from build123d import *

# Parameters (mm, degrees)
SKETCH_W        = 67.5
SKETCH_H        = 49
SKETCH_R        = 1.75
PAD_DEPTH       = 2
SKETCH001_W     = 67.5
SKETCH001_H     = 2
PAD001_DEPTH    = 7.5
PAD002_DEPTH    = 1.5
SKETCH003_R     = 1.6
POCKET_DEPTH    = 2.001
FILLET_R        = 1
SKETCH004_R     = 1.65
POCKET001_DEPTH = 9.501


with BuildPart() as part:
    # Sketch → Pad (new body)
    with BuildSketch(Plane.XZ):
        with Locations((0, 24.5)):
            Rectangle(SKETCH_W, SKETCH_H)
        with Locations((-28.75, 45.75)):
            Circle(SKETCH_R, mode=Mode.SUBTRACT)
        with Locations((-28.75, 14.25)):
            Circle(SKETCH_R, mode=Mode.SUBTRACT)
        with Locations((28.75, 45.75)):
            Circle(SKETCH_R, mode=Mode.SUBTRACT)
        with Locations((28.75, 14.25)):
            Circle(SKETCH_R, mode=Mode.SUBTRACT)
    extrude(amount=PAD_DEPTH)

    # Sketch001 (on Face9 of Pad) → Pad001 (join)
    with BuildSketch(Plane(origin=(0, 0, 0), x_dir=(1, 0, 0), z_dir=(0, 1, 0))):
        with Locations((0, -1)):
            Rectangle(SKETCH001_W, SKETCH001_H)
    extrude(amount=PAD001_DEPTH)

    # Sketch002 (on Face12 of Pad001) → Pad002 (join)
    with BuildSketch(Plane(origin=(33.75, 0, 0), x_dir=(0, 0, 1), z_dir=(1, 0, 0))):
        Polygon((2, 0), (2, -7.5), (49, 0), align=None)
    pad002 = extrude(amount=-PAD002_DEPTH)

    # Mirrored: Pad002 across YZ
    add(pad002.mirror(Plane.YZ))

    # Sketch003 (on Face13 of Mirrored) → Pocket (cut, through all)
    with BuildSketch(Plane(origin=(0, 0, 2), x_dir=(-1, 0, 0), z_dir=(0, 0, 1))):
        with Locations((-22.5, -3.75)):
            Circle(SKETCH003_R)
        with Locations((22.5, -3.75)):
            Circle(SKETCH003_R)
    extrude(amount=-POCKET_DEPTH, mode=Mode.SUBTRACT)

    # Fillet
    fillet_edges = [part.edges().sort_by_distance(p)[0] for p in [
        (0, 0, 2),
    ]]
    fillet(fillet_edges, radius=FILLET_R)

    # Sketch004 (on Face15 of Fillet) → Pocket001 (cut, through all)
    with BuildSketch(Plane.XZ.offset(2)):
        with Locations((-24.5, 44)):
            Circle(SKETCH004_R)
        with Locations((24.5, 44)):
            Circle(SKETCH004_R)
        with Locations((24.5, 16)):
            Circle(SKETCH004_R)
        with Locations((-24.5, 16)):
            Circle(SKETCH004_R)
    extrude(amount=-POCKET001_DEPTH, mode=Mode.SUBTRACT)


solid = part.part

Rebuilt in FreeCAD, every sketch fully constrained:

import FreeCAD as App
import Part
import Sketcher
from FreeCAD import Vector


def edges_at(feature, points):
    """Names of the edges that pass closest to the given points."""
    edges = feature.Shape.Edges
    near = lambda p: min(range(len(edges)), key=lambda i: edges[i].distToShape(Part.Vertex(*p))[0])
    return sorted({f"Edge{near(p) + 1}" for p in points})

doc = App.newDocument("Part")
body = doc.addObject("PartDesign::Body", "Body")

# Sketch on XZ plane
sketch1 = body.newObject("Sketcher::SketchObject", "Sketch")
sketch1.AttachmentSupport = (doc.getObject("XZ_Plane"), [""])
sketch1.MapMode = "FlatFace"
sketch1.addGeometry([
    Part.LineSegment(Vector(-33.8, 49, 0), Vector(-33.8, 0, 0)),  # 0
    Part.LineSegment(Vector(-33.8, 0, 0), Vector(33.8, 0, 0)),  # 1
    Part.LineSegment(Vector(33.8, 0, 0), Vector(33.8, 49, 0)),  # 2
    Part.LineSegment(Vector(33.8, 49, 0), Vector(-33.8, 49, 0)),  # 3
    Part.Circle(Vector(-28.8, 14.2, 0), Vector(0, 0, 1), 1.8),  # 4
    Part.Circle(Vector(28.8, 14.2, 0), Vector(0, 0, 1), 1.8),  # 5
    Part.Circle(Vector(-28.8, 45.8, 0), Vector(0, 0, 1), 1.8),  # 6
    Part.Circle(Vector(28.8, 45.8, 0), Vector(0, 0, 1), 1.8),  # 7
], False)
sketch1.addConstraint([
    Sketcher.Constraint("Coincident", 0, 2, 1, 1),
    Sketcher.Constraint("Coincident", 1, 2, 2, 1),
    Sketcher.Constraint("Coincident", 2, 2, 3, 1),
    Sketcher.Constraint("Coincident", 3, 2, 0, 1),
    Sketcher.Constraint("Vertical", 0),
    Sketcher.Constraint("Horizontal", 1),
    Sketcher.Constraint("Vertical", 2),
    Sketcher.Constraint("Horizontal", 3),
    Sketcher.Constraint("Equal", 4, 5),
    Sketcher.Constraint("Equal", 5, 6),
    Sketcher.Constraint("Equal", 6, 7),
    Sketcher.Constraint("Symmetric", 0, 2, 1, 2, -1, 1),
    Sketcher.Constraint("Symmetric", 4, 3, 5, 3, -2),
    Sketcher.Constraint("Symmetric", 6, 3, 7, 3, -2),
    Sketcher.Constraint("Vertical", 4, 3, 6, 3),
    Sketcher.Constraint("Diameter", 4, 3.5),
    Sketcher.Constraint("DistanceY", 0, 2, 0, 1, 49.0),
    Sketcher.Constraint("DistanceX", 1, 1, 1, 2, 67.5),
    Sketcher.Constraint("DistanceX", 0, 2, 4, 3, 5.0),
    Sketcher.Constraint("DistanceY", 4, 3, 6, 3, 31.5),
    Sketcher.Constraint("DistanceY", -1, 1, 4, 3, 14.25),
])
pad1 = body.newObject("PartDesign::Pad", "Pad")
pad1.Profile = sketch1
pad1.Length = 2

# Sketch on XZ plane
sketch2 = body.newObject("Sketcher::SketchObject", "Sketch001")
sketch2.AttachmentSupport = (doc.getObject("XZ_Plane"), [""])
sketch2.MapMode = "FlatFace"
sketch2.addGeometry([
    Part.LineSegment(Vector(-33.8, 0, 0), Vector(-33.8, 2, 0)),
    Part.LineSegment(Vector(-33.8, 2, 0), Vector(33.8, 2, 0)),
    Part.LineSegment(Vector(33.8, 2, 0), Vector(33.8, 0, 0)),
    Part.LineSegment(Vector(33.8, 0, 0), Vector(-33.8, 0, 0)),
], False)
sketch2.addConstraint([
    Sketcher.Constraint("Coincident", 0, 2, 1, 1),
    Sketcher.Constraint("Coincident", 1, 2, 2, 1),
    Sketcher.Constraint("Coincident", 2, 2, 3, 1),
    Sketcher.Constraint("Coincident", 3, 2, 0, 1),
    Sketcher.Constraint("Vertical", 0),
    Sketcher.Constraint("Horizontal", 1),
    Sketcher.Constraint("Vertical", 2),
    Sketcher.Constraint("Horizontal", 3),
    Sketcher.Constraint("Symmetric", 2, 2, 3, 2, -1, 1),
    Sketcher.Constraint("DistanceY", 0, 1, 0, 2, 2.0),
    Sketcher.Constraint("DistanceX", 1, 1, 1, 2, 67.5),
])
pad2 = body.newObject("PartDesign::Pad", "Pad001")
pad2.Profile = sketch2
pad2.Length = 7.5
pad2.Reversed = True

# Sketch on YZ plane
sketch3 = body.newObject("Sketcher::SketchObject", "Sketch002")
sketch3.AttachmentSupport = (doc.getObject("YZ_Plane"), [""])
sketch3.MapMode = "FlatFace"
sketch3.AttachmentOffset = App.Placement(Vector(0, 0, 33.75), App.Rotation())
sketch3.addGeometry([
    Part.LineSegment(Vector(0, 2, 0), Vector(8, 2, 0)),
    Part.LineSegment(Vector(8, 2, 0), Vector(0, 49, 0)),
    Part.LineSegment(Vector(0, 49, 0), Vector(0, 2, 0)),
], False)
sketch3.addConstraint([
    Sketcher.Constraint("Coincident", 0, 2, 1, 1),
    Sketcher.Constraint("Coincident", 1, 2, 2, 1),
    Sketcher.Constraint("Coincident", 2, 2, 0, 1),
    Sketcher.Constraint("Horizontal", 0),
    Sketcher.Constraint("Vertical", 2),
    Sketcher.Constraint("PointOnObject", 1, 2, -2),
    Sketcher.Constraint("DistanceY", 2, 2, 2, 1, 47.0),
    Sketcher.Constraint("DistanceX", 0, 1, 0, 2, 7.5),
    Sketcher.Constraint("DistanceY", -1, 1, 0, 2, 2.0),
])
pad3 = body.newObject("PartDesign::Pad", "Pad002")
pad3.Profile = sketch3
pad3.Length = 1.5
pad3.Reversed = True
doc.recompute()

mirrored = body.newObject("PartDesign::Mirrored", "Mirrored")
mirrored.Originals = [pad3]
mirrored.MirrorPlane = (doc.getObject("YZ_Plane"), [""])
body.Tip = mirrored

# Sketch on XY plane
sketch4 = body.newObject("Sketcher::SketchObject", "Sketch003")
sketch4.AttachmentSupport = (doc.getObject("XY_Plane"), [""])
sketch4.MapMode = "FlatFace"
sketch4.AttachmentOffset = App.Placement(Vector(0, 0, 2), App.Rotation())
sketch4.addGeometry([
    Part.Circle(Vector(22.5, 3.8, 0), Vector(0, 0, 1), 1.6),
    Part.Circle(Vector(-22.5, 3.8, 0), Vector(0, 0, 1), 1.6),
], False)
sketch4.addConstraint([
    Sketcher.Constraint("Equal", 0, 1),
    Sketcher.Constraint("Symmetric", 0, 3, 1, 3, -2),
    Sketcher.Constraint("Diameter", 0, 3.2),
    Sketcher.Constraint("DistanceX", 1, 3, 0, 3, 45.0),
    Sketcher.Constraint("DistanceY", -1, 1, 0, 3, 3.75),
])
pocket1 = body.newObject("PartDesign::Pocket", "Pocket")
pocket1.Profile = sketch4
pocket1.Type = "ThroughAll"
doc.recompute()

fillet = body.newObject("PartDesign::Fillet", "Fillet")
fillet.Base = (pocket1, edges_at(pocket1, [(0, 0, 2)]))
fillet.Radius = 1

# Sketch on XZ plane
sketch5 = body.newObject("Sketcher::SketchObject", "Sketch004")
sketch5.AttachmentSupport = (doc.getObject("XZ_Plane"), [""])
sketch5.MapMode = "FlatFace"
sketch5.AttachmentOffset = App.Placement(Vector(0, 0, 2), App.Rotation())
sketch5.addGeometry([
    Part.Circle(Vector(-24.5, 44, 0), Vector(0, 0, 1), 1.6),
    Part.Circle(Vector(24.5, 44, 0), Vector(0, 0, 1), 1.6),
    Part.Circle(Vector(24.5, 16, 0), Vector(0, 0, 1), 1.6),
    Part.Circle(Vector(-24.5, 16, 0), Vector(0, 0, 1), 1.6),
], False)
sketch5.addConstraint([
    Sketcher.Constraint("Equal", 0, 1),
    Sketcher.Constraint("Equal", 1, 2),
    Sketcher.Constraint("Equal", 2, 3),
    Sketcher.Constraint("Symmetric", 0, 3, 1, 3, -2),
    Sketcher.Constraint("Symmetric", 2, 3, 3, 3, -2),
    Sketcher.Constraint("Vertical", 1, 3, 2, 3),
    Sketcher.Constraint("Diameter", 0, 3.3),
    Sketcher.Constraint("DistanceY", -1, 1, 0, 3, 44.0),
    Sketcher.Constraint("DistanceY", -1, 1, 2, 3, 16.0),
    Sketcher.Constraint("DistanceX", 0, 3, 1, 3, 49.0),
])
pocket2 = body.newObject("PartDesign::Pocket", "Pocket001")
pocket2.Profile = sketch5
pocket2.Type = "ThroughAll"

doc.recompute()
